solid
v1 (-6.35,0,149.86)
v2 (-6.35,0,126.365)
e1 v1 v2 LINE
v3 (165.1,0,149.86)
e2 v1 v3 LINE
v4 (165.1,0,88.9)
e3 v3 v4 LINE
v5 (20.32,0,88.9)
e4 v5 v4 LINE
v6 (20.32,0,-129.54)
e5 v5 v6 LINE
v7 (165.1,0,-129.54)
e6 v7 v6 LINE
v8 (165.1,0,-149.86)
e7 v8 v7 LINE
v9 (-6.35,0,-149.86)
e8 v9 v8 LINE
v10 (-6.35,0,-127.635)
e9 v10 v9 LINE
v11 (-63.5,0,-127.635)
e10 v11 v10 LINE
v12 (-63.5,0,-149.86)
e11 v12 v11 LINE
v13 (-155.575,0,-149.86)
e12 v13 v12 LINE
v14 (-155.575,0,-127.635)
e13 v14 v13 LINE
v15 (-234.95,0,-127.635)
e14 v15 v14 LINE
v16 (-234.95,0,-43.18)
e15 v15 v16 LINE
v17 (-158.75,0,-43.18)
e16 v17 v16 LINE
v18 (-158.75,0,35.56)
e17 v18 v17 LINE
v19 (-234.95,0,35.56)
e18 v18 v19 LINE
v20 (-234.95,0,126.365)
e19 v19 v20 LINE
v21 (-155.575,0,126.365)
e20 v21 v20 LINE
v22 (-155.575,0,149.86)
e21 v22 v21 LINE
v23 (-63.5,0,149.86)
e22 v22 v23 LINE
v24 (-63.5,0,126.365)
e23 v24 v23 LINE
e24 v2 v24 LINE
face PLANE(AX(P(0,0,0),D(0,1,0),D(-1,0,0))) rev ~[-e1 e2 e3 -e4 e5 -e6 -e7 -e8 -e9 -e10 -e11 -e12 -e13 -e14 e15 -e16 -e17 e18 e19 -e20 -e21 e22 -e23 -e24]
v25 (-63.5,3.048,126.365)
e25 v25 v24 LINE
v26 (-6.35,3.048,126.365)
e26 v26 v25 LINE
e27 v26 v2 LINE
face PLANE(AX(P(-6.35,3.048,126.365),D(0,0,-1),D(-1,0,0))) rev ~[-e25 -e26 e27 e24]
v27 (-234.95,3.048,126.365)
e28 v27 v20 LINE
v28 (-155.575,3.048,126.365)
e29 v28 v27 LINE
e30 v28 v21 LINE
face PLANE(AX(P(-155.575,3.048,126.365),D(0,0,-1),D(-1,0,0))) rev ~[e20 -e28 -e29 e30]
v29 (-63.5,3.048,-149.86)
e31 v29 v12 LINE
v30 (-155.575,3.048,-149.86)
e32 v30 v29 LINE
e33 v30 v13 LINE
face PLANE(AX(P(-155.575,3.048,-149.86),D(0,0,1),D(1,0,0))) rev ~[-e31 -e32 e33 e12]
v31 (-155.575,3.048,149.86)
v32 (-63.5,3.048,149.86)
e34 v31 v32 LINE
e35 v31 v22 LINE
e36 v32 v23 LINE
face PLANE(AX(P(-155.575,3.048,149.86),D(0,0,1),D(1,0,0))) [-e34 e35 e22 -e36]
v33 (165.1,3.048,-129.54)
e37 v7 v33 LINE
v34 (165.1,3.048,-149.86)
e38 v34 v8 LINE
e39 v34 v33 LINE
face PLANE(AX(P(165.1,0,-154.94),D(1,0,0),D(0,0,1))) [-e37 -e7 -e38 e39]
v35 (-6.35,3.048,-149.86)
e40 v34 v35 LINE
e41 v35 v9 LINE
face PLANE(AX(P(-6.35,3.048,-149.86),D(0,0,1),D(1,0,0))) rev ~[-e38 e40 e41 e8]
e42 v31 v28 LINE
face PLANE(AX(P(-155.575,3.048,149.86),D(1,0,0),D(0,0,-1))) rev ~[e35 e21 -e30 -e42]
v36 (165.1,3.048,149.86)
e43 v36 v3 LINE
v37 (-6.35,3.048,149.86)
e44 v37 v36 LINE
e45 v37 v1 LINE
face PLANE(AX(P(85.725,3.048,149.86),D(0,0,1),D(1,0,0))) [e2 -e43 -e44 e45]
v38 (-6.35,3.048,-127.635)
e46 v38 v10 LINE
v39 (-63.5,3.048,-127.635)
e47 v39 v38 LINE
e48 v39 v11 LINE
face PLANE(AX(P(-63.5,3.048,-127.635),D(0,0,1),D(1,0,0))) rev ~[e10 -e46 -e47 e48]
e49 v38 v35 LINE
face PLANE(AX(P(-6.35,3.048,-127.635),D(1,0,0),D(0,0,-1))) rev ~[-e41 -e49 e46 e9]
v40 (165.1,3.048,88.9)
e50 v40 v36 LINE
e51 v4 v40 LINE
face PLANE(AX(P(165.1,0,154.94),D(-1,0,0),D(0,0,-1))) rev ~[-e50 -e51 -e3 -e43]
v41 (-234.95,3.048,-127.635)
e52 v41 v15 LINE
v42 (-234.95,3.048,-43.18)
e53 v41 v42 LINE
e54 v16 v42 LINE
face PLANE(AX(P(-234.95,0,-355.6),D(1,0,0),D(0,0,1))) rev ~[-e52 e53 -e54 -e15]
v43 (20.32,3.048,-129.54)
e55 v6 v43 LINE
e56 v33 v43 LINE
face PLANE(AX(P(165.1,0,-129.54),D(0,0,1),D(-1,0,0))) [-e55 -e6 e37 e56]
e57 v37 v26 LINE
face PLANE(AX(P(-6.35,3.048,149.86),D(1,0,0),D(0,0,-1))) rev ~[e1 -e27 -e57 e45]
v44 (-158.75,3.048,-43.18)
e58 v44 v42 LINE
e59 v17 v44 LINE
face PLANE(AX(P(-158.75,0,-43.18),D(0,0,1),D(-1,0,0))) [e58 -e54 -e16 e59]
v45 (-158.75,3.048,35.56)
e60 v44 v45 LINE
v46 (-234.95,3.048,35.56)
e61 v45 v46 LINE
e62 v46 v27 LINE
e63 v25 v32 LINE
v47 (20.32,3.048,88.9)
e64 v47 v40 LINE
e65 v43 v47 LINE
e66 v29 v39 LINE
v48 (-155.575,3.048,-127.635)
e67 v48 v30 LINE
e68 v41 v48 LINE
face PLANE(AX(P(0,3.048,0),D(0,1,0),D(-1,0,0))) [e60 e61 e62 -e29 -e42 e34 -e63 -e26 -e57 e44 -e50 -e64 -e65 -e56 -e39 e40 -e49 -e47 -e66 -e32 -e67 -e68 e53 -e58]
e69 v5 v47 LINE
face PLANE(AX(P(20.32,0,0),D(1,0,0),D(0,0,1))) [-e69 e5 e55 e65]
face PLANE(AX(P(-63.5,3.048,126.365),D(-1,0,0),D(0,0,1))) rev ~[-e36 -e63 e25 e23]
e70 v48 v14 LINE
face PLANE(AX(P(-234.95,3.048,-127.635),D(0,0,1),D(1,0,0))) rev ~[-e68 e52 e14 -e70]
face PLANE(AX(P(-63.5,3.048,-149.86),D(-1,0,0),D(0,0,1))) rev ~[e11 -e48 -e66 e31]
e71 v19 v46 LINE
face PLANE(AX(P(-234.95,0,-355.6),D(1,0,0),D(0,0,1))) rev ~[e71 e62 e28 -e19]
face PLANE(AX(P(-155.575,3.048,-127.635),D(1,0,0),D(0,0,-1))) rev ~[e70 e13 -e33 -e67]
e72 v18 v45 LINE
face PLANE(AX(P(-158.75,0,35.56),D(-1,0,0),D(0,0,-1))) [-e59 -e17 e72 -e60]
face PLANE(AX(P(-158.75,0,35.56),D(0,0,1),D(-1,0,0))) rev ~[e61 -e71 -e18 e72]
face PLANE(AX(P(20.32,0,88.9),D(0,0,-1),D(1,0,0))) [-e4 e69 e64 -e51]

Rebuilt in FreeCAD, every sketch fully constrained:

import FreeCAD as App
import Part
import Sketcher

V = App.Vector
Q = App.Units.Quantity


def add_polygon(sketch, points):
    """Adds a closed chain of lines whose ends are joined by coincident constraints."""
    first, n = sketch.GeometryCount, len(points)
    for a, b in zip(points, points[1:] + points[:1]):
        sketch.addGeometry(Part.LineSegment(App.Vector(*a, 0), App.Vector(*b, 0)), False)
    for i in range(n):
        sketch.addConstraint(Sketcher.Constraint("Coincident", first + i, 2, first + (i + 1) % n, 1))

doc = App.newDocument("Part")
body = doc.addObject("PartDesign::Body", "Body")

# Sketch on XZ plane
sketch1 = doc.addObject("Sketcher::SketchObject", "Sketch")
body.addObject(sketch1)
sketch1.AttachmentSupport = (doc.XZ_Plane, [""])
sketch1.MapMode = "FlatFace"
add_polygon(sketch1, [(-235, -356), (-235, 356), (235, 356), (235, -356)])  # lines 0-3
sketch1.addConstraint(Sketcher.Constraint("Vertical", 0))
sketch1.addConstraint(Sketcher.Constraint("Horizontal", 1))
sketch1.addConstraint(Sketcher.Constraint("Vertical", 2))
sketch1.addConstraint(Sketcher.Constraint("Horizontal", 3))
sketch1.addConstraint(Sketcher.Constraint("Symmetric", 0, 2, 2, 2, -1, 1))
sketch1.addConstraint(Sketcher.Constraint("DistanceY", 0, 1, 0, 2, Q("28 in")))
sketch1.addConstraint(Sketcher.Constraint("DistanceX", 1, 1, 1, 2, Q("18.5 in")))
pad1 = doc.addObject("PartDesign::Pad", "Pad")
body.addObject(pad1)
pad1.Profile = sketch1
pad1.Length = Q("0.12 in")
pad1.Reversed = True

# Sketch on XZ plane
sketch2 = doc.addObject("Sketcher::SketchObject", "Sketch001")
body.addObject(sketch2)
sketch2.AttachmentSupport = (doc.XZ_Plane, [""])
sketch2.MapMode = "FlatFace"
add_polygon(sketch2, [(-118, 187), (-235, 187), (-235, 150), (-220, 150), (-220, 175), (-118, 175)])  # lines 0-5
add_polygon(sketch2, [(235, 356), (25, 356), (25, 295), (165, 155), (165, 89), (20, 89), (20, -130), (165, -130), (165, -155), (25, -295), (25, -356), (235, -356)])  # lines 6-17
add_polygon(sketch2, [(-159, 36), (-235, 36), (-235, -43), (-159, -43)])  # lines 18-21
add_polygon(sketch2, [(-220, -150), (-235, -150), (-235, -187), (-118, -187), (-118, -175), (-220, -175)])  # lines 22-27
sketch2.addConstraint(Sketcher.Constraint("Horizontal", 0))
sketch2.addConstraint(Sketcher.Constraint("Vertical", 1))
sketch2.addConstraint(Sketcher.Constraint("Horizontal", 2))
sketch2.addConstraint(Sketcher.Constraint("Vertical", 3))
sketch2.addConstraint(Sketcher.Constraint("Horizontal", 4))
sketch2.addConstraint(Sketcher.Constraint("Vertical", 5))
sketch2.addConstraint(Sketcher.Constraint("Horizontal", 6))
sketch2.addConstraint(Sketcher.Constraint("Vertical", 7))
sketch2.addConstraint(Sketcher.Constraint("Vertical", 9))
sketch2.addConstraint(Sketcher.Constraint("Horizontal", 10))
sketch2.addConstraint(Sketcher.Constraint("Vertical", 11))
sketch2.addConstraint(Sketcher.Constraint("Horizontal", 12))
sketch2.addConstraint(Sketcher.Constraint("Vertical", 13))
sketch2.addConstraint(Sketcher.Constraint("Vertical", 15))
sketch2.addConstraint(Sketcher.Constraint("Horizontal", 16))
sketch2.addConstraint(Sketcher.Constraint("Vertical", 17))
sketch2.addConstraint(Sketcher.Constraint("Horizontal", 18))
sketch2.addConstraint(Sketcher.Constraint("Vertical", 19))
sketch2.addConstraint(Sketcher.Constraint("Horizontal", 20))
sketch2.addConstraint(Sketcher.Constraint("Vertical", 21))
sketch2.addConstraint(Sketcher.Constraint("Horizontal", 22))
sketch2.addConstraint(Sketcher.Constraint("Vertical", 23))
sketch2.addConstraint(Sketcher.Constraint("Horizontal", 24))
sketch2.addConstraint(Sketcher.Constraint("Vertical", 25))
sketch2.addConstraint(Sketcher.Constraint("Horizontal", 26))
sketch2.addConstraint(Sketcher.Constraint("Vertical", 27))
sketch2.addConstraint(Sketcher.Constraint("Symmetric", 8, 2, 13, 2, -1))
sketch2.addConstraint(Sketcher.Constraint("Symmetric", 7, 2, 14, 2, -1))
sketch2.addConstraint(Sketcher.Constraint("Symmetric", 1, 2, 22, 2, -1))
sketch2.addConstraint(Sketcher.Constraint("Symmetric", 5, 2, 24, 2, -1))
sketch2.addConstraint(Sketcher.Constraint("Symmetric", 3, 2, 26, 2, -1))
sketch2.addConstraint(Sketcher.Constraint("Perpendicular", 8, 14))
sketch2.addConstraint(Sketcher.Constraint("Vertical", 1, 2, 18, 2))
sketch2.addConstraint(Sketcher.Constraint("Equal", 3, 13))
sketch2.addConstraint(Sketcher.Constraint("Equal", 7, 15))
sketch2.addConstraint(Sketcher.Constraint("DistanceX", 4, 1, 4, 2, Q("4 in")))
sketch2.addConstraint(Sketcher.Constraint("DistanceX", 18, 2, 18, 1, Q("3 in")))
sketch2.addConstraint(Sketcher.Constraint("DistanceY", 3, 1, 3, 2, Q("1 in")))
sketch2.addConstraint(Sketcher.Constraint("DistanceX", 10, 2, 10, 1, Q("5.7 in")))
sketch2.addConstraint(Sketcher.Constraint("DistanceY", 7, 2, 7, 1, Q("2.4 in")))
sketch2.addConstraint(Sketcher.Constraint("DistanceX", -1, 1, 6, 2, Q("1 in")))
sketch2.addConstraint(Sketcher.Constraint("DistanceX", 6, 2, 6, 1, Q("8.25 in")))
sketch2.addConstraint(Sketcher.Constraint("DistanceY", -1, 1, 18, 2, Q("1.4 in")))
sketch2.addConstraint(Sketcher.Constraint("DistanceY", 19, 2, -1, 1, Q("1.7 in")))
sketch2.addConstraint(Sketcher.Constraint("DistanceY", 18, 2, 1, 2, Q("4.5 in")))
sketch2.addConstraint(Sketcher.Constraint("DistanceX", 2, 2, 20, 2, Q("2.4 in")))
sketch2.addConstraint(Sketcher.Constraint("DistanceY", 17, 1, 17, 2, Q("28 in")))
sketch2.addConstraint(Sketcher.Constraint("DistanceX", 13, 2, 16, 2, Q("2.75 in")))
sketch2.addConstraint(Sketcher.Constraint("DistanceY", 9, 2, 9, 1, Q("2.6 in")))
sketch2.addConstraint(Sketcher.Constraint("DistanceY", 1, 2, 1, 1, Q("1.45 in")))
sketch2.addConstraint(Sketcher.Constraint("DistanceX", 0, 2, -1, 1, Q("9.25 in")))
pocket1 = doc.addObject("PartDesign::Pocket", "Pocket")
body.addObject(pocket1)
pocket1.Profile = sketch2
pocket1.Length = Q("0.12 in")

# Sketch on XZ plane
sketch3 = doc.addObject("Sketcher::SketchObject", "Sketch002")
body.addObject(sketch3)
sketch3.AttachmentSupport = (doc.XZ_Plane, [""])
sketch3.MapMode = "FlatFace"
add_polygon(sketch3, [(25, 330), (25, 356), (6, 356), (6, 330)])  # lines 0-3
add_polygon(sketch3, [(-102, 330), (-102, 356), (-146, 356), (-146, 330)])  # lines 4-7
add_polygon(sketch3, [(25, -356), (25, -330), (6, -330), (6, -356)])  # lines 8-11
add_polygon(sketch3, [(-146, -356), (-102, -356), (-102, -330), (-146, -330)])  # lines 12-15
sketch3.addConstraint(Sketcher.Constraint("Vertical", 0))
sketch3.addConstraint(Sketcher.Constraint("Horizontal", 1))
sketch3.addConstraint(Sketcher.Constraint("Vertical", 2))
sketch3.addConstraint(Sketcher.Constraint("Horizontal", 3))
sketch3.addConstraint(Sketcher.Constraint("Vertical", 4))
sketch3.addConstraint(Sketcher.Constraint("Horizontal", 5))
sketch3.addConstraint(Sketcher.Constraint("Vertical", 6))
sketch3.addConstraint(Sketcher.Constraint("Horizontal", 7))
sketch3.addConstraint(Sketcher.Constraint("Vertical", 8))
sketch3.addConstraint(Sketcher.Constraint("Horizontal", 9))
sketch3.addConstraint(Sketcher.Constraint("Vertical", 10))
sketch3.addConstraint(Sketcher.Constraint("Horizontal", 11))
sketch3.addConstraint(Sketcher.Constraint("Horizontal", 12))
sketch3.addConstraint(Sketcher.Constraint("Vertical", 13))
sketch3.addConstraint(Sketcher.Constraint("Horizontal", 14))
sketch3.addConstraint(Sketcher.Constraint("Vertical", 15))
sketch3.addConstraint(Sketcher.Constraint("Symmetric", 3, 2, 8, 2, -1))
sketch3.addConstraint(Sketcher.Constraint("Symmetric", 1, 2, 10, 2, -1))
sketch3.addConstraint(Sketcher.Constraint("Symmetric", 4, 2, 12, 2, -1))
sketch3.addConstraint(Sketcher.Constraint("Symmetric", 6, 2, 14, 2, -1))
sketch3.addConstraint(Sketcher.Constraint("Horizontal", 1, 2, 4, 2))
sketch3.addConstraint(Sketcher.Constraint("Horizontal", 3, 2, 6, 2))
sketch3.addConstraint(Sketcher.Constraint("DistanceY", 0, 1, 0, 2, Q("1 in")))
sketch3.addConstraint(Sketcher.Constraint("DistanceX", -1, 1, 0, 2, Q("1 in")))
sketch3.addConstraint(Sketcher.Constraint("DistanceX", 1, 2, 1, 1, Q("0.75 in")))
sketch3.addConstraint(Sketcher.Constraint("DistanceX", 5, 2, 5, 1, Q("1.75 in")))
sketch3.addConstraint(Sketcher.Constraint("DistanceY", -1, 1, 0, 2, Q("14 in")))
sketch3.addConstraint(Sketcher.Constraint("DistanceX", 4, 2, -1, 1, Q("4 in")))
pocket2 = doc.addObject("PartDesign::Pocket", "Pocket001")
body.addObject(pocket2)
pocket2.Profile = sketch3
pocket2.Length = Q("0.12 in")

# Sketch on XZ plane
sketch4 = doc.addObject("Sketcher::SketchObject", "Sketch003")
body.addObject(sketch4)
sketch4.AttachmentSupport = (doc.XZ_Plane, [""])
sketch4.MapMode = "FlatFace"
sketch4.AttachmentOffset = App.Placement(V(0, 0, -0.12 * 25.4), App.Rotation())
add_polygon(sketch4, [(165, 150), (-6, 150), (-6, 126), (-64, 126), (-64, 150), (-156, 150), (-156, 126), (-235, 126), (-235, 150), (-220, 150), (-220, 175), (-118, 175), (-118, 187), (-235, 187), (-235, 356), (-146, 356), (-146, 330), (-102, 330), (-102, 356), (6, 356), (6, 330), (25, 330), (25, 295), (165, 155)])  # lines 0-23
add_polygon(sketch4, [(-6, -150), (165, -150), (165, -155), (25, -295), (25, -330), (6, -330), (6, -356), (-102, -356), (-102, -330), (-146, -330), (-146, -356), (-235, -356), (-235, -187), (-118, -187), (-118, -175), (-220, -175), (-220, -150), (-235, -150), (-235, -128), (-156, -128), (-156, -150), (-64, -150), (-64, -128), (-6, -128)])  # lines 24-47
sketch4.addConstraint(Sketcher.Constraint("Horizontal", 0))
sketch4.addConstraint(Sketcher.Constraint("Vertical", 1))
sketch4.addConstraint(Sketcher.Constraint("Horizontal", 2))
sketch4.addConstraint(Sketcher.Constraint("Vertical", 3))
sketch4.addConstraint(Sketcher.Constraint("Horizontal", 4))
sketch4.addConstraint(Sketcher.Constraint("Vertical", 5))
sketch4.addConstraint(Sketcher.Constraint("Horizontal", 6))
sketch4.addConstraint(Sketcher.Constraint("Vertical", 7))
sketch4.addConstraint(Sketcher.Constraint("Horizontal", 8))
sketch4.addConstraint(Sketcher.Constraint("Vertical", 9))
sketch4.addConstraint(Sketcher.Constraint("Horizontal", 10))
sketch4.addConstraint(Sketcher.Constraint("Vertical", 11))
sketch4.addConstraint(Sketcher.Constraint("Horizontal", 12))
sketch4.addConstraint(Sketcher.Constraint("Vertical", 13))
sketch4.addConstraint(Sketcher.Constraint("Horizontal", 14))
sketch4.addConstraint(Sketcher.Constraint("Vertical", 15))
sketch4.addConstraint(Sketcher.Constraint("Horizontal", 16))
sketch4.addConstraint(Sketcher.Constraint("Vertical", 17))
sketch4.addConstraint(Sketcher.Constraint("Horizontal", 18))
sketch4.addConstraint(Sketcher.Constraint("Vertical", 19))
sketch4.addConstraint(Sketcher.Constraint("Horizontal", 20))
sketch4.addConstraint(Sketcher.Constraint("Vertical", 21))
sketch4.addConstraint(Sketcher.Constraint("Vertical", 23))
sketch4.addConstraint(Sketcher.Constraint("Horizontal", 24))
sketch4.addConstraint(Sketcher.Constraint("Vertical", 25))
sketch4.addConstraint(Sketcher.Constraint("Vertical", 27))
sketch4.addConstraint(Sketcher.Constraint("Horizontal", 28))
sketch4.addConstraint(Sketcher.Constraint("Vertical", 29))
sketch4.addConstraint(Sketcher.Constraint("Horizontal", 30))
sketch4.addConstraint(Sketcher.Constraint("Vertical", 31))
sketch4.addConstraint(Sketcher.Constraint("Horizontal", 32))
sketch4.addConstraint(Sketcher.Constraint("Vertical", 33))
sketch4.addConstraint(Sketcher.Constraint("Horizontal", 34))
sketch4.addConstraint(Sketcher.Constraint("Vertical", 35))
sketch4.addConstraint(Sketcher.Constraint("Horizontal", 36))
sketch4.addConstraint(Sketcher.Constraint("Vertical", 37))
sketch4.addConstraint(Sketcher.Constraint("Horizontal", 38))
sketch4.addConstraint(Sketcher.Constraint("Vertical", 39))
sketch4.addConstraint(Sketcher.Constraint("Horizontal", 40))
sketch4.addConstraint(Sketcher.Constraint("Vertical", 41))
sketch4.addConstraint(Sketcher.Constraint("Horizontal", 42))
sketch4.addConstraint(Sketcher.Constraint("Vertical", 43))
sketch4.addConstraint(Sketcher.Constraint("Horizontal", 44))
sketch4.addConstraint(Sketcher.Constraint("Vertical", 45))
sketch4.addConstraint(Sketcher.Constraint("Horizontal", 46))
sketch4.addConstraint(Sketcher.Constraint("Vertical", 47))
sketch4.addConstraint(Sketcher.Constraint("Symmetric", 23, 2, 24, 2, -1))
sketch4.addConstraint(Sketcher.Constraint("Symmetric", 21, 2, 26, 2, -1))
sketch4.addConstraint(Sketcher.Constraint("Symmetric", 19, 2, 28, 2, -1))
sketch4.addConstraint(Sketcher.Constraint("Symmetric", 17, 2, 30, 2, -1))
sketch4.addConstraint(Sketcher.Constraint("Symmetric", 15, 2, 32, 2, -1))
sketch4.addConstraint(Sketcher.Constraint("Symmetric", 13, 2, 34, 2, -1))
sketch4.addConstraint(Sketcher.Constraint("Symmetric", 11, 2, 36, 2, -1))
sketch4.addConstraint(Sketcher.Constraint("Symmetric", 9, 2, 38, 2, -1))
sketch4.addConstraint(Sketcher.Constraint("Symmetric", 7, 2, 40, 2, -1))
sketch4.addConstraint(Sketcher.Constraint("Symmetric", 4, 2, 43, 2, -1))
sketch4.addConstraint(Sketcher.Constraint("Perpendicular", 22, 26))
sketch4.addConstraint(Sketcher.Constraint("Horizontal", 0, 2, 3, 2))
sketch4.addConstraint(Sketcher.Constraint("Horizontal", 2, 2, 5, 2))
sketch4.addConstraint(Sketcher.Constraint("Horizontal", 4, 2, 7, 2))
sketch4.addConstraint(Sketcher.Constraint("Horizontal", 14, 2, 17, 2))
sketch4.addConstraint(Sketcher.Constraint("Horizontal", 16, 2, 19, 2))
sketch4.addConstraint(Sketcher.Constraint("Horizontal", 42, 2, 45, 2))
sketch4.addConstraint(Sketcher.Constraint("Vertical", 7, 2, 12, 2))
sketch4.addConstraint(Sketcher.Constraint("Vertical", 3, 2, 44, 2))
sketch4.addConstraint(Sketcher.Constraint("Vertical", 1, 2, 46, 2))
sketch4.addConstraint(Sketcher.Constraint("Equal", 9, 15))
sketch4.addConstraint(Sketcher.Constraint("Equal", 23, 25))
sketch4.addConstraint(Sketcher.Constraint("DistanceY", 9, 1, 9, 2, Q("1 in")))
sketch4.addConstraint(Sketcher.Constraint("DistanceX", -1, 1, 20, 2, Q("1 in")))
sketch4.addConstraint(Sketcher.Constraint("DistanceX", 2, 2, 2, 1, Q("2.25 in")))
sketch4.addConstraint(Sketcher.Constraint("DistanceX", 6, 2, 6, 1, Q("3.125 in")))
sketch4.addConstraint(Sketcher.Constraint("DistanceX", 10, 1, 10, 2, Q("4 in")))
sketch4.addConstraint(Sketcher.Constraint("DistanceX", 8, 1, 8, 2, Q("0.6 in")))
sketch4.addConstraint(Sketcher.Constraint("DistanceX", 14, 1, 14, 2, Q("3.5 in")))
sketch4.addConstraint(Sketcher.Constraint("DistanceY", 21, 2, 21, 1, Q("1.4 in")))
sketch4.addConstraint(Sketcher.Constraint("DistanceY", 23, 2, 23, 1, Q("0.2 in")))
sketch4.addConstraint(Sketcher.Constraint("DistanceY", -1, 1, 13, 2, Q("14 in")))
sketch4.addConstraint(Sketcher.Constraint("DistanceX", 16, 2, -1, 1, Q("4 in")))
sketch4.addConstraint(Sketcher.Constraint("DistanceX", 6, 2, 1, 2, Q("9 in")))
sketch4.addConstraint(Sketcher.Constraint("DistanceX", 14, 2, 18, 2, Q("6 in")))
sketch4.addConstraint(Sketcher.Constraint("DistanceX", 3, 2, 22, 2, Q("9 in")))
sketch4.addConstraint(Sketcher.Constraint("DistanceY", 24, 2, 22, 2, Q("12 in")))
sketch4.addConstraint(Sketcher.Constraint("DistanceY", 11, 1, 11, 2, Q("0.45 in")))
sketch4.addConstraint(Sketcher.Constraint("DistanceY", 1, 2, 1, 1, Q("0.925 in")))
sketch4.addConstraint(Sketcher.Constraint("DistanceY", 41, 1, 41, 2, Q("0.875 in")))
pocket3 = doc.addObject("PartDesign::Pocket", "Pocket002")
body.addObject(pocket3)
pocket3.Profile = sketch4
pocket3.Type = "ThroughAll"
pocket3.Reversed = True

doc.recompute()
